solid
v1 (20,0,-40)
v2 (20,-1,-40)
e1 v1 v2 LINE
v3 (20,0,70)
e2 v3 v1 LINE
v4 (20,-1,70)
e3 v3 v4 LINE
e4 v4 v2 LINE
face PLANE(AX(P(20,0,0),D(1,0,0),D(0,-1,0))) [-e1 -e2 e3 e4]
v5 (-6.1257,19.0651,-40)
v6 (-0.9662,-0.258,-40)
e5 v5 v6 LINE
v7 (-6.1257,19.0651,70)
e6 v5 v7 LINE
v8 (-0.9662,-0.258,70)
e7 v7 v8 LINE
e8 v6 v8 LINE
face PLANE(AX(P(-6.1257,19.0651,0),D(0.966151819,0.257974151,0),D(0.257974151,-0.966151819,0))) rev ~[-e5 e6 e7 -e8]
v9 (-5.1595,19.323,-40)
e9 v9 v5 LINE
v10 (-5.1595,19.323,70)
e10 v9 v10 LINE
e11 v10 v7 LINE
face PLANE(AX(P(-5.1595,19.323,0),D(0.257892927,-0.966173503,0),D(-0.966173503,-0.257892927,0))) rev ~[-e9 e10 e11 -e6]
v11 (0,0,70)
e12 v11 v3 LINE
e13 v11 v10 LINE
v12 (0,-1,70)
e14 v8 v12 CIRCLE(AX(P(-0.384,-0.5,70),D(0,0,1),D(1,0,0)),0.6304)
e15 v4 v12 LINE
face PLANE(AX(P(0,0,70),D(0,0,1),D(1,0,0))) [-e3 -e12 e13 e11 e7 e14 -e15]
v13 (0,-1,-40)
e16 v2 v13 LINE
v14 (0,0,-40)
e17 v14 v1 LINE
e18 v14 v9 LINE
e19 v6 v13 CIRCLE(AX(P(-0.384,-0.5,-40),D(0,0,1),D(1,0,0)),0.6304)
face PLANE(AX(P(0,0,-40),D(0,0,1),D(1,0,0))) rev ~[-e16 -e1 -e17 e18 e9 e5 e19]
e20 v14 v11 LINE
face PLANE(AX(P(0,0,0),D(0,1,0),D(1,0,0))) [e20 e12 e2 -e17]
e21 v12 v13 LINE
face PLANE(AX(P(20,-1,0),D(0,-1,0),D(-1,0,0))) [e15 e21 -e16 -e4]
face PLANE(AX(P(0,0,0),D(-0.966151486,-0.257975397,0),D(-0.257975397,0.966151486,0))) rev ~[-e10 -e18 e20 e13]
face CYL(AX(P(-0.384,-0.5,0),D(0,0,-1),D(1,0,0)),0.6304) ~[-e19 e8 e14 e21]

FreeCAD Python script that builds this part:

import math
import FreeCAD as App
import Part
import Sketcher
Q = App.Units.Quantity

doc = App.newDocument("Part")
body = doc.addObject("PartDesign::Body", "Body")

# Sketch on XY plane
sketch1 = body.newObject("Sketcher::SketchObject", "Sketch")
sketch1.AttachmentSupport = (doc.getObject("XY_Plane"), [""])
sketch1.MapMode = "FlatFace"
sketch1.addGeometry([
    Part.LineSegment(App.Vector(20, 0, 0), App.Vector(0, 0, 0)),  # 0
    Part.LineSegment(App.Vector(0, 0, 0), App.Vector(-5.1595, 19.323, 0)),  # 1
    Part.LineSegment(App.Vector(-5.1595, 19.323, 0), App.Vector(-6.1257, 19.0651, 0)),  # 2
    Part.LineSegment(App.Vector(-6.1257, 19.0651, 0), App.Vector(-0.9662, -0.258, 0)),  # 3
    Part.ArcOfCircle(Part.Circle(App.Vector(-0.384, -0.5, 0), App.Vector(0, 0, 1), 0.6304), math.radians(157.429068), math.radians(307.524263)),  # 4
    Part.LineSegment(App.Vector(0, -1, 0), App.Vector(20, -1, 0)),  # 5
    Part.LineSegment(App.Vector(20, -1, 0), App.Vector(20, 0, 0)),  # 6
], False)
sketch1.addConstraint([
    Sketcher.Constraint("Coincident", 0, 2, 1, 1),
    Sketcher.Constraint("Coincident", 1, 2, 2, 1),
    Sketcher.Constraint("Coincident", 2, 2, 3, 1),
    Sketcher.Constraint("Coincident", 3, 2, 4, 1),
    Sketcher.Constraint("Coincident", 4, 2, 5, 1),
    Sketcher.Constraint("Coincident", 5, 2, 6, 1),
    Sketcher.Constraint("Coincident", 6, 2, 0, 1),
    Sketcher.Constraint("Horizontal", 0),
    Sketcher.Constraint("Horizontal", 5),
    Sketcher.Constraint("Vertical", 6),
    Sketcher.Constraint("Coincident", 0, 2, -1, 1),
    Sketcher.Constraint("PointOnObject", 4, 2, -2),
    Sketcher.Constraint("Perpendicular", 1, 2),
    Sketcher.Constraint("Perpendicular", 2, 3),
    Sketcher.Constraint("Equal", 1, 3),
    Sketcher.Constraint("DistanceX", 0, 2, 0, 1, Q("20 mm")),
    Sketcher.Constraint("DistanceY", 6, 1, 6, 2, Q("1 mm")),
    Sketcher.Constraint("Distance", 1, Q("20 mm")),
    Sketcher.Constraint("Distance", 2, Q("1 mm")),
    Sketcher.Constraint("Angle", 1, Q("104.95 deg")),
    Sketcher.Constraint("DistanceY", 4, 3, -1, 1, Q("0.5 mm")),
])
pad1 = body.newObject("PartDesign::Pad", "Pad")
pad1.Profile = sketch1
pad1.Type = "TwoLengths"
pad1.Length = 70
pad1.Length2 = 40

doc.recompute()
